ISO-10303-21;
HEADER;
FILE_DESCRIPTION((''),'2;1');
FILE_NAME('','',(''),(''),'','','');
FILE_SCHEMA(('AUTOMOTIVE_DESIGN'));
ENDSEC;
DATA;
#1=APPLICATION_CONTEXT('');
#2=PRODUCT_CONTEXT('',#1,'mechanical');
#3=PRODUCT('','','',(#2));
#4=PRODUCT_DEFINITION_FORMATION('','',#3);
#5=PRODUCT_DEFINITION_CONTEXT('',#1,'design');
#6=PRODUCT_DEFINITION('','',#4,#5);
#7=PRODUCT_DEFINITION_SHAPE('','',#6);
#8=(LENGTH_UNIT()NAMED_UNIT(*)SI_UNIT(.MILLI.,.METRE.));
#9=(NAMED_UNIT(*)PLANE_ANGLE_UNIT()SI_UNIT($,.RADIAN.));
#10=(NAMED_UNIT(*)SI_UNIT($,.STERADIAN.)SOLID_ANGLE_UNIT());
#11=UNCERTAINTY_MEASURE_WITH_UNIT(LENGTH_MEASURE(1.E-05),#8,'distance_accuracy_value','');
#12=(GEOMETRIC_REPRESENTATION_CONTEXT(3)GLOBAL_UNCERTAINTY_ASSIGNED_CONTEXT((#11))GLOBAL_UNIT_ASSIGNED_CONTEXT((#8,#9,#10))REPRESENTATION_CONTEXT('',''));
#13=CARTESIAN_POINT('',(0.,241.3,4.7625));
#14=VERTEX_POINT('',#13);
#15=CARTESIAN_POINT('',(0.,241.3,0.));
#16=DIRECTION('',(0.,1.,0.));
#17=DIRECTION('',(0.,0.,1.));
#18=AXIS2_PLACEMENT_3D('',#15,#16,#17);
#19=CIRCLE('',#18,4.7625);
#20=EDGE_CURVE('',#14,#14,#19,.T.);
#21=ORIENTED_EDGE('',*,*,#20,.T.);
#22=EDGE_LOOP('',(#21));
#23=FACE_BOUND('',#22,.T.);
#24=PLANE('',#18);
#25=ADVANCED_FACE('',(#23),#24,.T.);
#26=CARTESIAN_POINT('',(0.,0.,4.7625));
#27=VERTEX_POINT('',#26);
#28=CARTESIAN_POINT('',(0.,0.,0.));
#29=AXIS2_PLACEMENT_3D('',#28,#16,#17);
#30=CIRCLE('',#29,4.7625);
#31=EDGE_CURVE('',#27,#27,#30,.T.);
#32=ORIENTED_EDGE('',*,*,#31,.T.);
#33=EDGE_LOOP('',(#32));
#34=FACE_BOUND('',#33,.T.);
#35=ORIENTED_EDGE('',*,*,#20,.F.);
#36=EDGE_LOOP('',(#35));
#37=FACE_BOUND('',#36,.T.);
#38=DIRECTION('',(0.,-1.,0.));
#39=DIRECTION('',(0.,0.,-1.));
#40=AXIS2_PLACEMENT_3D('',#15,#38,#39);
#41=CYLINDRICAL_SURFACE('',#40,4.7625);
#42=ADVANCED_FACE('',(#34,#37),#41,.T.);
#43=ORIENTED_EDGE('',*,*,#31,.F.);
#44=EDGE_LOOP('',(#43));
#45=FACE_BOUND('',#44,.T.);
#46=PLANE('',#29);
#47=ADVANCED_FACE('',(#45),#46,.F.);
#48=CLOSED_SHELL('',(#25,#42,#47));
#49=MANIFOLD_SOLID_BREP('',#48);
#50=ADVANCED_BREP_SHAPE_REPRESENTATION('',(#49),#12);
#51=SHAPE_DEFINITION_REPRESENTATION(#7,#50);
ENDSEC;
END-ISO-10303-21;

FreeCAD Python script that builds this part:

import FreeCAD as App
import Part
import Sketcher
Q = App.Units.Quantity

doc = App.newDocument("Part")
body = doc.addObject("PartDesign::Body", "Body")

sketch1 = doc.addObject("Sketcher::SketchObject", "Sketch")
body.addObject(sketch1)
sketch1.AttachmentSupport = (doc.XZ_Plane, [""])
sketch1.MapMode = "FlatFace"
sketch1.addGeometry(Part.Circle(App.Vector(0, 0, 0), App.Vector(0, 0, 1), 4.8), False)
sketch1.addConstraint(Sketcher.Constraint("Coincident", 0, 3, -1, 1))
sketch1.addConstraint(Sketcher.Constraint("Diameter", 0, Q("0.375 in")))
pad1 = doc.addObject("PartDesign::Pad", "Pad")
body.addObject(pad1)
pad1.Profile = sketch1
pad1.Length = Q("9.5 in")
pad1.Reversed = True

doc.recompute()
